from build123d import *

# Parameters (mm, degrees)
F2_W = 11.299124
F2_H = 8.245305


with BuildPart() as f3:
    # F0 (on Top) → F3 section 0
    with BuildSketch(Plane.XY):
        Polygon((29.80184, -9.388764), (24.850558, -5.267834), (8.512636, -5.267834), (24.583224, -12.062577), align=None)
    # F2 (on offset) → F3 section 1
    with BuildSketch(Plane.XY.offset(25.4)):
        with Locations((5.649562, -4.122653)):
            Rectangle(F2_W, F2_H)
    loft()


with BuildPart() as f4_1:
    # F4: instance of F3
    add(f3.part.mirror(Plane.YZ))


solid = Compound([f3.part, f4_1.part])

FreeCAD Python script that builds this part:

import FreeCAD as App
import Part
import Sketcher
from FreeCAD import Vector
Q = App.Units.Quantity

doc = App.newDocument("Part")
body = doc.addObject("PartDesign::Body", "Body")

sketch1 = body.newObject("Sketcher::SketchObject", "Sketch")
sketch1.AttachmentSupport = (doc.getObject("XY_Plane"), [""])
sketch1.MapMode = "FlatFace"
sketch1.addGeometry(Part.LineSegment(Vector(30, -9, 0), Vector(25, -5, 0)), False)
sketch1.addGeometry(Part.LineSegment(Vector(25, -5, 0), Vector(9, -5, 0)), False)
sketch1.addGeometry(Part.LineSegment(Vector(9, -5, 0), Vector(25, -12, 0)), False)
sketch1.addGeometry(Part.LineSegment(Vector(25, -12, 0), Vector(30, -9, 0)), False)
sketch1.addConstraint(Sketcher.Constraint("Coincident", 0, 2, 1, 1))
sketch1.addConstraint(Sketcher.Constraint("Coincident", 1, 2, 2, 1))
sketch1.addConstraint(Sketcher.Constraint("Coincident", 2, 2, 3, 1))
sketch1.addConstraint(Sketcher.Constraint("Coincident", 3, 2, 0, 1))
sketch1.addConstraint(Sketcher.Constraint("Horizontal", 1))
sketch1.addConstraint(Sketcher.Constraint("DistanceX", 1, 2, 1, 1, Q("16.337922 mm")))
sketch1.addConstraint(Sketcher.Constraint("Distance", 2, Q("17.447989 mm")))
sketch1.addConstraint(Sketcher.Constraint("Distance", 3, Q("5.863721 mm")))
sketch1.addConstraint(Sketcher.Constraint("DistanceX", -1, 1, 3, 2, Q("29.80184 mm")))
sketch1.addConstraint(Sketcher.Constraint("DistanceX", 1, 2, 2, 2, Q("16.070588 mm")))
sketch1.addConstraint(Sketcher.Constraint("DistanceX", 0, 2, 3, 2, Q("4.951282 mm")))
sketch1.addConstraint(Sketcher.Constraint("DistanceY", 0, 2, -1, 1, Q("5.267834 mm")))

sketch2 = body.newObject("Sketcher::SketchObject", "Sketch001")
sketch2.AttachmentSupport = (doc.getObject("XY_Plane"), [""])
sketch2.MapMode = "FlatFace"
sketch2.AttachmentOffset = App.Placement(Vector(0, 0, 25.4), App.Rotation())
sketch2.addGeometry(Part.LineSegment(Vector(0, 0, 0), Vector(0, -8, 0)), False)
sketch2.addGeometry(Part.LineSegment(Vector(0, -8, 0), Vector(11, -8, 0)), False)
sketch2.addGeometry(Part.LineSegment(Vector(11, -8, 0), Vector(11, 0, 0)), False)
sketch2.addGeometry(Part.LineSegment(Vector(11, 0, 0), Vector(0, 0, 0)), False)
sketch2.addConstraint(Sketcher.Constraint("Coincident", 0, 2, 1, 1))
sketch2.addConstraint(Sketcher.Constraint("Coincident", 1, 2, 2, 1))
sketch2.addConstraint(Sketcher.Constraint("Coincident", 2, 2, 3, 1))
sketch2.addConstraint(Sketcher.Constraint("Coincident", 3, 2, 0, 1))
sketch2.addConstraint(Sketcher.Constraint("Vertical", 0))
sketch2.addConstraint(Sketcher.Constraint("Horizontal", 1))
sketch2.addConstraint(Sketcher.Constraint("Vertical", 2))
sketch2.addConstraint(Sketcher.Constraint("Horizontal", 3))
sketch2.addConstraint(Sketcher.Constraint("Coincident", 3, 2, -1, 1))
sketch2.addConstraint(Sketcher.Constraint("DistanceX", 1, 1, 1, 2, Q("11.299124 mm")))
sketch2.addConstraint(Sketcher.Constraint("DistanceY", 0, 2, 0, 1, Q("8.245305 mm")))

additiveloft = body.newObject("PartDesign::AdditiveLoft", "AdditiveLoft")
additiveloft.Profile = sketch1
additiveloft.Sections = [sketch2]
body2 = doc.addObject("PartDesign::Body", "Body001")
doc.recompute()

mirroring = doc.addObject("Part::Mirroring", "Mirroring")
mirroring.Source = body
mirroring.Base = Vector(0, 0, 0)
mirroring.Normal = Vector(1, 0, 0)
body2.BaseFeature = mirroring
doc.recompute()
mirroring.Visibility = False

doc.recompute()
